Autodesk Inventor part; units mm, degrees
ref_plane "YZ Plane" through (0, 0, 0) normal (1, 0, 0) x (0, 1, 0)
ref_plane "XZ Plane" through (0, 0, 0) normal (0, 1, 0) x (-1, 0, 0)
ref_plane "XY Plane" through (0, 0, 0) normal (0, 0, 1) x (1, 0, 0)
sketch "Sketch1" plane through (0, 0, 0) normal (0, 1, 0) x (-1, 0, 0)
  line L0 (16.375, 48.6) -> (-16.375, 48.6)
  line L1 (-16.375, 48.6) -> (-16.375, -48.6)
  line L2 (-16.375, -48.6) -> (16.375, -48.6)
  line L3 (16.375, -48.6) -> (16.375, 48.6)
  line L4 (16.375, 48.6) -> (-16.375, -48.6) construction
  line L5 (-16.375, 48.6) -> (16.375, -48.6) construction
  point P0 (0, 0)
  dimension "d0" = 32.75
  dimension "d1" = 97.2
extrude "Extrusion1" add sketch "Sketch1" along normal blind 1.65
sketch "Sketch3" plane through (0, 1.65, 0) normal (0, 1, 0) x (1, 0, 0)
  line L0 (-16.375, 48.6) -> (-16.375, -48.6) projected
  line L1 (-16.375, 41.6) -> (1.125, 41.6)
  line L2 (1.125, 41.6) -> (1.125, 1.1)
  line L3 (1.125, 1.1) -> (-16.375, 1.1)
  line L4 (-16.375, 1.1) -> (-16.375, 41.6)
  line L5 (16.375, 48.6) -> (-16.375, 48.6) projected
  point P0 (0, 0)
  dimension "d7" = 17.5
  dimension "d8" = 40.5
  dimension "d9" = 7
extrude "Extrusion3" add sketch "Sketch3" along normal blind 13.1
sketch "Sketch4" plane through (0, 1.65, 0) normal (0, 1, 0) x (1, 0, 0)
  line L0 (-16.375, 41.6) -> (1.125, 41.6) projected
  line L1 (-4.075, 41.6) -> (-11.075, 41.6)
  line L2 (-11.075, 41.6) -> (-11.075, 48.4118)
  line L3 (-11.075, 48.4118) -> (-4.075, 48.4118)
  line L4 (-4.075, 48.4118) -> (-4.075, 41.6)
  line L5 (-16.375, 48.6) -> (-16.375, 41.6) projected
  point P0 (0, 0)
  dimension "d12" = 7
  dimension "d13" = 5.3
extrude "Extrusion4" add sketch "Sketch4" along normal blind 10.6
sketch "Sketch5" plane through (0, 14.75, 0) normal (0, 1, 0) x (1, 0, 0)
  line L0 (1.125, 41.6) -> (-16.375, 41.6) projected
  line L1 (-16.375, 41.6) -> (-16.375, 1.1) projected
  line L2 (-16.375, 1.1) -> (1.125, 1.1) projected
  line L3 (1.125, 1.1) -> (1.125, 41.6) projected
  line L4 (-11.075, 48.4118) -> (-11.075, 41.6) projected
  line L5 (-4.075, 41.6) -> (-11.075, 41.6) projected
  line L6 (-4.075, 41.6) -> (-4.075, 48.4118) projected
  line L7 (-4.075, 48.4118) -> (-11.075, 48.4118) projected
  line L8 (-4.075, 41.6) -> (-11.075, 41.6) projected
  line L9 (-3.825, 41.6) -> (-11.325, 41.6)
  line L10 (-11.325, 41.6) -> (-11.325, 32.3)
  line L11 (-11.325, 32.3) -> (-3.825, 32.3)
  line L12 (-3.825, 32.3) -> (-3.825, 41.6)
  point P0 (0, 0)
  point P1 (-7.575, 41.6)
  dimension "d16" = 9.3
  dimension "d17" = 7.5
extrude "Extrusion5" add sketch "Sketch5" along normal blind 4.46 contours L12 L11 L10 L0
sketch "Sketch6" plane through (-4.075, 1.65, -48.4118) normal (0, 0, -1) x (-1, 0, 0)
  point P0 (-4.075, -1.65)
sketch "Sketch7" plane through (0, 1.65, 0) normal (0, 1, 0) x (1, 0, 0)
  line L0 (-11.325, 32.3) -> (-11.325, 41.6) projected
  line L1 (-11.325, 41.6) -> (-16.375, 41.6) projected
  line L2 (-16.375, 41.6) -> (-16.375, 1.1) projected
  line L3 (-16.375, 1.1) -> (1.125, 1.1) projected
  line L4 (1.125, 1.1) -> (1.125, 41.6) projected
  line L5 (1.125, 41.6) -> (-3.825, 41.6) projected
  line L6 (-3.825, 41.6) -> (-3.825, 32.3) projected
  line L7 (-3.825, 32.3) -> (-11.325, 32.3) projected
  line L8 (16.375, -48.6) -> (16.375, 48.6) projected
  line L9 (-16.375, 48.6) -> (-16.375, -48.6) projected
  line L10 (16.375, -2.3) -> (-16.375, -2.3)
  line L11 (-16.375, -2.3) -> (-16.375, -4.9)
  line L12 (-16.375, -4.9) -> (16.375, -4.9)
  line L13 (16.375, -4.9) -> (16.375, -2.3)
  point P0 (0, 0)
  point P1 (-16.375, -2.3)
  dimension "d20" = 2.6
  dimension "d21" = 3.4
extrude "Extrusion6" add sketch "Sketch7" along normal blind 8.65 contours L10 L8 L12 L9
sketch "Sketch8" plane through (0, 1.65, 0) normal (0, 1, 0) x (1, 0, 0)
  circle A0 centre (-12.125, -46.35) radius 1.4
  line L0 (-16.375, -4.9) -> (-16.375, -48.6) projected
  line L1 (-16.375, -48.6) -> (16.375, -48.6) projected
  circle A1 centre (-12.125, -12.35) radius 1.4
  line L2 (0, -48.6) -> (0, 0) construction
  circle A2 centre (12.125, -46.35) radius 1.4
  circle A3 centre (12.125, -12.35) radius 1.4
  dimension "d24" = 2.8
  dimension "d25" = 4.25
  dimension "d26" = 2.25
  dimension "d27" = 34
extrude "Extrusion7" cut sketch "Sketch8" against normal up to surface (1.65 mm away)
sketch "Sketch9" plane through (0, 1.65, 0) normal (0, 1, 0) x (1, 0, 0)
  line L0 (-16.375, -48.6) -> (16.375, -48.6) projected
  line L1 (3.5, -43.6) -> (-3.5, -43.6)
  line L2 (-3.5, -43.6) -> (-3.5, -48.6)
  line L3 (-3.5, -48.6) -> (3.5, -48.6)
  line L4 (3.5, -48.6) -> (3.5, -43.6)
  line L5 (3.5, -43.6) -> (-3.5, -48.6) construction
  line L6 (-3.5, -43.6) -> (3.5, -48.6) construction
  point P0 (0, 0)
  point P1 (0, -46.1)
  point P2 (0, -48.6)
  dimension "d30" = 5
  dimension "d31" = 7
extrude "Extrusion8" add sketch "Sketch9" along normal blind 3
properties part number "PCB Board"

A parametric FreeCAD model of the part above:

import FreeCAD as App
import Part
import Sketcher

V = App.Vector

doc = App.newDocument("Part")
body = doc.addObject("PartDesign::Body", "Body")

sketch1 = body.newObject("Sketcher::SketchObject", "Sketch")
sketch1.AttachmentSupport = (doc.getObject("XZ_Plane"), [""])
sketch1.MapMode = "FlatFace"
sketch1.addGeometry(Part.LineSegment(V(-16, -49, 0), V(-16, 49, 0)), False)
sketch1.addGeometry(Part.LineSegment(V(-16, 49, 0), V(16, 49, 0)), False)
sketch1.addGeometry(Part.LineSegment(V(16, 49, 0), V(16, -49, 0)), False)
sketch1.addGeometry(Part.LineSegment(V(16, -49, 0), V(-16, -49, 0)), False)
sketch1.addConstraint(Sketcher.Constraint("Coincident", 0, 2, 1, 1))
sketch1.addConstraint(Sketcher.Constraint("Coincident", 1, 2, 2, 1))
sketch1.addConstraint(Sketcher.Constraint("Coincident", 2, 2, 3, 1))
sketch1.addConstraint(Sketcher.Constraint("Coincident", 3, 2, 0, 1))
sketch1.addConstraint(Sketcher.Constraint("Vertical", 0))
sketch1.addConstraint(Sketcher.Constraint("Horizontal", 1))
sketch1.addConstraint(Sketcher.Constraint("Vertical", 2))
sketch1.addConstraint(Sketcher.Constraint("Horizontal", 3))
sketch1.addConstraint(Sketcher.Constraint("Symmetric", 0, 2, 2, 2, -1, 1))
sketch1.addConstraint(Sketcher.Constraint("DistanceY", 0, 1, 0, 2, 97.2))
sketch1.addConstraint(Sketcher.Constraint("DistanceX", 1, 1, 1, 2, 32.75))
pad1 = body.newObject("PartDesign::Pad", "Pad")
pad1.Profile = sketch1
pad1.Length = 1.65
pad1.Reversed = True

sketch2 = body.newObject("Sketcher::SketchObject", "Sketch001")
sketch2.AttachmentSupport = (doc.getObject("XZ_Plane"), [""])
sketch2.MapMode = "FlatFace"
sketch2.AttachmentOffset = App.Placement(V(0, 0, -1.65), App.Rotation())
sketch2.addGeometry(Part.LineSegment(V(1, -42, 0), V(-16, -42, 0)), False)
sketch2.addGeometry(Part.LineSegment(V(-16, -42, 0), V(-16, -1, 0)), False)
sketch2.addGeometry(Part.LineSegment(V(-16, -1, 0), V(1, -1, 0)), False)
sketch2.addGeometry(Part.LineSegment(V(1, -1, 0), V(1, -42, 0)), False)
sketch2.addConstraint(Sketcher.Constraint("Coincident", 0, 2, 1, 1))
sketch2.addConstraint(Sketcher.Constraint("Coincident", 1, 2, 2, 1))
sketch2.addConstraint(Sketcher.Constraint("Coincident", 2, 2, 3, 1))
sketch2.addConstraint(Sketcher.Constraint("Coincident", 3, 2, 0, 1))
sketch2.addConstraint(Sketcher.Constraint("Horizontal", 0))
sketch2.addConstraint(Sketcher.Constraint("Vertical", 1))
sketch2.addConstraint(Sketcher.Constraint("Horizontal", 2))
sketch2.addConstraint(Sketcher.Constraint("Vertical", 3))
sketch2.addConstraint(Sketcher.Constraint("DistanceX", 0, 2, 0, 1, 17.5))
sketch2.addConstraint(Sketcher.Constraint("DistanceY", 1, 1, 1, 2, 40.5))
sketch2.addConstraint(Sketcher.Constraint("DistanceY", 0, 2, -1, 1, 41.6))
sketch2.addConstraint(Sketcher.Constraint("DistanceX", 0, 2, -1, 1, 16.375))
pad2 = body.newObject("PartDesign::Pad", "Pad001")
pad2.Profile = sketch2
pad2.Length = 13.1
pad2.Reversed = True

sketch3 = body.newObject("Sketcher::SketchObject", "Sketch002")
sketch3.AttachmentSupport = (doc.getObject("XZ_Plane"), [""])
sketch3.MapMode = "FlatFace"
sketch3.AttachmentOffset = App.Placement(V(0, 0, -1.65), App.Rotation())
sketch3.addGeometry(Part.LineSegment(V(-11, -48, 0), V(-11, -42, 0)), False)
sketch3.addGeometry(Part.LineSegment(V(-11, -42, 0), V(-4, -42, 0)), False)
sketch3.addGeometry(Part.LineSegment(V(-4, -42, 0), V(-4, -48, 0)), False)
sketch3.addGeometry(Part.LineSegment(V(-4, -48, 0), V(-11, -48, 0)), False)
sketch3.addConstraint(Sketcher.Constraint("Coincident", 0, 2, 1, 1))
sketch3.addConstraint(Sketcher.Constraint("Coincident", 1, 2, 2, 1))
sketch3.addConstraint(Sketcher.Constraint("Coincident", 2, 2, 3, 1))
sketch3.addConstraint(Sketcher.Constraint("Coincident", 3, 2, 0, 1))
sketch3.addConstraint(Sketcher.Constraint("Vertical", 0))
sketch3.addConstraint(Sketcher.Constraint("Horizontal", 1))
sketch3.addConstraint(Sketcher.Constraint("Vertical", 2))
sketch3.addConstraint(Sketcher.Constraint("Horizontal", 3))
sketch3.addConstraint(Sketcher.Constraint("DistanceX", 1, 1, 1, 2, 7.0))
sketch3.addConstraint(Sketcher.Constraint("DistanceY", 0, 2, -1, 1, 41.6))
sketch3.addConstraint(Sketcher.Constraint("DistanceY", 0, 1, 0, 2, 6.8118))
sketch3.addConstraint(Sketcher.Constraint("DistanceX", 0, 2, -1, 1, 11.075))
pad3 = body.newObject("PartDesign::Pad", "Pad002")
pad3.Profile = sketch3
pad3.Length = 10.6
pad3.Reversed = True

sketch4 = body.newObject("Sketcher::SketchObject", "Sketch003")
sketch4.AttachmentSupport = (doc.getObject("XZ_Plane"), [""])
sketch4.MapMode = "FlatFace"
sketch4.AttachmentOffset = App.Placement(V(0, 0, -14.75), App.Rotation())
sketch4.addGeometry(Part.LineSegment(V(-4, -32, 0), V(-4, -42, 0)), False)
sketch4.addGeometry(Part.LineSegment(V(-4, -42, 0), V(-11, -42, 0)), False)
sketch4.addGeometry(Part.LineSegment(V(-11, -42, 0), V(-11, -32, 0)), False)
sketch4.addGeometry(Part.LineSegment(V(-11, -32, 0), V(-4, -32, 0)), False)
sketch4.addConstraint(Sketcher.Constraint("Coincident", 0, 2, 1, 1))
sketch4.addConstraint(Sketcher.Constraint("Coincident", 1, 2, 2, 1))
sketch4.addConstraint(Sketcher.Constraint("Coincident", 2, 2, 3, 1))
sketch4.addConstraint(Sketcher.Constraint("Coincident", 3, 2, 0, 1))
sketch4.addConstraint(Sketcher.Constraint("Vertical", 0))
sketch4.addConstraint(Sketcher.Constraint("Horizontal", 1))
sketch4.addConstraint(Sketcher.Constraint("Vertical", 2))
sketch4.addConstraint(Sketcher.Constraint("Horizontal", 3))
sketch4.addConstraint(Sketcher.Constraint("DistanceX", 1, 2, 1, 1, 7.5))
sketch4.addConstraint(Sketcher.Constraint("DistanceY", 0, 2, 0, 1, 9.3))
sketch4.addConstraint(Sketcher.Constraint("DistanceY", 0, 2, -1, 1, 41.6))
sketch4.addConstraint(Sketcher.Constraint("DistanceX", 0, 2, -1, 1, 3.825))
pad4 = body.newObject("PartDesign::Pad", "Pad003")
pad4.Profile = sketch4
pad4.Length = 4.46
pad4.Reversed = True

sketch5 = body.newObject("Sketcher::SketchObject", "Sketch004")
sketch5.AttachmentSupport = (doc.getObject("XZ_Plane"), [""])
sketch5.MapMode = "FlatFace"
sketch5.AttachmentOffset = App.Placement(V(0, 0, -1.65), App.Rotation())
sketch5.addGeometry(Part.LineSegment(V(16.4, 2.3, 0), V(-16.4, 2.3, 0)), False)
sketch5.addGeometry(Part.LineSegment(V(-16.4, 2.3, 0), V(-16.4, 4.9, 0)), False)
sketch5.addGeometry(Part.LineSegment(V(-16.4, 4.9, 0), V(16.4, 4.9, 0)), False)
sketch5.addGeometry(Part.LineSegment(V(16.4, 4.9, 0), V(16.4, 2.3, 0)), False)
sketch5.addConstraint(Sketcher.Constraint("Coincident", 0, 2, 1, 1))
sketch5.addConstraint(Sketcher.Constraint("Coincident", 1, 2, 2, 1))
sketch5.addConstraint(Sketcher.Constraint("Coincident", 2, 2, 3, 1))
sketch5.addConstraint(Sketcher.Constraint("Coincident", 3, 2, 0, 1))
sketch5.addConstraint(Sketcher.Constraint("Horizontal", 0))
sketch5.addConstraint(Sketcher.Constraint("Vertical", 1))
sketch5.addConstraint(Sketcher.Constraint("Horizontal", 2))
sketch5.addConstraint(Sketcher.Constraint("Vertical", 3))
sketch5.addConstraint(Sketcher.Constraint("DistanceY", 1, 1, 1, 2, 2.6))
sketch5.addConstraint(Sketcher.Constraint("DistanceX", 0, 2, 0, 1, 32.75))
sketch5.addConstraint(Sketcher.Constraint("DistanceY", -1, 1, 0, 2, 2.3))
sketch5.addConstraint(Sketcher.Constraint("DistanceX", 0, 2, -1, 1, 16.375))
pad5 = body.newObject("PartDesign::Pad", "Pad004")
pad5.Profile = sketch5
pad5.Length = 8.65
pad5.Reversed = True

sketch6 = body.newObject("Sketcher::SketchObject", "Sketch005")
sketch6.AttachmentSupport = (doc.getObject("XZ_Plane"), [""])
sketch6.MapMode = "FlatFace"
sketch6.AttachmentOffset = App.Placement(V(0, 0, -1.65), App.Rotation())
sketch6.addGeometry(Part.Circle(V(-12.1, 46.4, 0), V(0, 0, 1), 1.4), False)
sketch6.addGeometry(Part.Circle(V(-12.1, 12.3, 0), V(0, 0, 1), 1.4), False)
sketch6.addGeometry(Part.Circle(V(12.1, 46.4, 0), V(0, 0, 1), 1.4), False)
sketch6.addGeometry(Part.Circle(V(12.1, 12.3, 0), V(0, 0, 1), 1.4), False)
sketch6.addConstraint(Sketcher.Constraint("Equal", 0, 1))
sketch6.addConstraint(Sketcher.Constraint("Equal", 1, 2))
sketch6.addConstraint(Sketcher.Constraint("Equal", 2, 3))
sketch6.addConstraint(Sketcher.Constraint("Symmetric", 0, 3, 2, 3, -2))
sketch6.addConstraint(Sketcher.Constraint("Symmetric", 1, 3, 3, 3, -2))
sketch6.addConstraint(Sketcher.Constraint("Vertical", 0, 3, 1, 3))
sketch6.addConstraint(Sketcher.Constraint("Diameter", 0, 2.8))
sketch6.addConstraint(Sketcher.Constraint("DistanceY", 1, 3, 0, 3, 34.0))
sketch6.addConstraint(Sketcher.Constraint("DistanceY", -1, 1, 0, 3, 46.35))
sketch6.addConstraint(Sketcher.Constraint("DistanceX", 0, 3, 2, 3, 24.25))
pocket1 = body.newObject("PartDesign::Pocket", "Pocket")
pocket1.Profile = sketch6
pocket1.Length = 1.65
pocket1.Reversed = True

sketch7 = body.newObject("Sketcher::SketchObject", "Sketch006")
sketch7.AttachmentSupport = (doc.getObject("XZ_Plane"), [""])
sketch7.MapMode = "FlatFace"
sketch7.AttachmentOffset = App.Placement(V(0, 0, -1.65), App.Rotation())
sketch7.addGeometry(Part.LineSegment(V(-4, 44, 0), V(-4, 49, 0)), False)
sketch7.addGeometry(Part.LineSegment(V(-4, 49, 0), V(4, 49, 0)), False)
sketch7.addGeometry(Part.LineSegment(V(4, 49, 0), V(4, 44, 0)), False)
sketch7.addGeometry(Part.LineSegment(V(4, 44, 0), V(-4, 44, 0)), False)
sketch7.addConstraint(Sketcher.Constraint("Coincident", 0, 2, 1, 1))
sketch7.addConstraint(Sketcher.Constraint("Coincident", 1, 2, 2, 1))
sketch7.addConstraint(Sketcher.Constraint("Coincident", 2, 2, 3, 1))
sketch7.addConstraint(Sketcher.Constraint("Coincident", 3, 2, 0, 1))
sketch7.addConstraint(Sketcher.Constraint("Vertical", 0))
sketch7.addConstraint(Sketcher.Constraint("Horizontal", 1))
sketch7.addConstraint(Sketcher.Constraint("Vertical", 2))
sketch7.addConstraint(Sketcher.Constraint("Horizontal", 3))
sketch7.addConstraint(Sketcher.Constraint("DistanceX", 1, 1, 1, 2, 7.0))
sketch7.addConstraint(Sketcher.Constraint("DistanceY", 0, 1, 0, 2, 5.0))
sketch7.addConstraint(Sketcher.Constraint("DistanceX", 0, 2, -1, 1, 3.5))
sketch7.addConstraint(Sketcher.Constraint("DistanceY", -1, 1, 0, 2, 48.6))
pad6 = body.newObject("PartDesign::Pad", "Pad005")
pad6.Profile = sketch7
pad6.Length = 3
pad6.Reversed = True

doc.recompute()
